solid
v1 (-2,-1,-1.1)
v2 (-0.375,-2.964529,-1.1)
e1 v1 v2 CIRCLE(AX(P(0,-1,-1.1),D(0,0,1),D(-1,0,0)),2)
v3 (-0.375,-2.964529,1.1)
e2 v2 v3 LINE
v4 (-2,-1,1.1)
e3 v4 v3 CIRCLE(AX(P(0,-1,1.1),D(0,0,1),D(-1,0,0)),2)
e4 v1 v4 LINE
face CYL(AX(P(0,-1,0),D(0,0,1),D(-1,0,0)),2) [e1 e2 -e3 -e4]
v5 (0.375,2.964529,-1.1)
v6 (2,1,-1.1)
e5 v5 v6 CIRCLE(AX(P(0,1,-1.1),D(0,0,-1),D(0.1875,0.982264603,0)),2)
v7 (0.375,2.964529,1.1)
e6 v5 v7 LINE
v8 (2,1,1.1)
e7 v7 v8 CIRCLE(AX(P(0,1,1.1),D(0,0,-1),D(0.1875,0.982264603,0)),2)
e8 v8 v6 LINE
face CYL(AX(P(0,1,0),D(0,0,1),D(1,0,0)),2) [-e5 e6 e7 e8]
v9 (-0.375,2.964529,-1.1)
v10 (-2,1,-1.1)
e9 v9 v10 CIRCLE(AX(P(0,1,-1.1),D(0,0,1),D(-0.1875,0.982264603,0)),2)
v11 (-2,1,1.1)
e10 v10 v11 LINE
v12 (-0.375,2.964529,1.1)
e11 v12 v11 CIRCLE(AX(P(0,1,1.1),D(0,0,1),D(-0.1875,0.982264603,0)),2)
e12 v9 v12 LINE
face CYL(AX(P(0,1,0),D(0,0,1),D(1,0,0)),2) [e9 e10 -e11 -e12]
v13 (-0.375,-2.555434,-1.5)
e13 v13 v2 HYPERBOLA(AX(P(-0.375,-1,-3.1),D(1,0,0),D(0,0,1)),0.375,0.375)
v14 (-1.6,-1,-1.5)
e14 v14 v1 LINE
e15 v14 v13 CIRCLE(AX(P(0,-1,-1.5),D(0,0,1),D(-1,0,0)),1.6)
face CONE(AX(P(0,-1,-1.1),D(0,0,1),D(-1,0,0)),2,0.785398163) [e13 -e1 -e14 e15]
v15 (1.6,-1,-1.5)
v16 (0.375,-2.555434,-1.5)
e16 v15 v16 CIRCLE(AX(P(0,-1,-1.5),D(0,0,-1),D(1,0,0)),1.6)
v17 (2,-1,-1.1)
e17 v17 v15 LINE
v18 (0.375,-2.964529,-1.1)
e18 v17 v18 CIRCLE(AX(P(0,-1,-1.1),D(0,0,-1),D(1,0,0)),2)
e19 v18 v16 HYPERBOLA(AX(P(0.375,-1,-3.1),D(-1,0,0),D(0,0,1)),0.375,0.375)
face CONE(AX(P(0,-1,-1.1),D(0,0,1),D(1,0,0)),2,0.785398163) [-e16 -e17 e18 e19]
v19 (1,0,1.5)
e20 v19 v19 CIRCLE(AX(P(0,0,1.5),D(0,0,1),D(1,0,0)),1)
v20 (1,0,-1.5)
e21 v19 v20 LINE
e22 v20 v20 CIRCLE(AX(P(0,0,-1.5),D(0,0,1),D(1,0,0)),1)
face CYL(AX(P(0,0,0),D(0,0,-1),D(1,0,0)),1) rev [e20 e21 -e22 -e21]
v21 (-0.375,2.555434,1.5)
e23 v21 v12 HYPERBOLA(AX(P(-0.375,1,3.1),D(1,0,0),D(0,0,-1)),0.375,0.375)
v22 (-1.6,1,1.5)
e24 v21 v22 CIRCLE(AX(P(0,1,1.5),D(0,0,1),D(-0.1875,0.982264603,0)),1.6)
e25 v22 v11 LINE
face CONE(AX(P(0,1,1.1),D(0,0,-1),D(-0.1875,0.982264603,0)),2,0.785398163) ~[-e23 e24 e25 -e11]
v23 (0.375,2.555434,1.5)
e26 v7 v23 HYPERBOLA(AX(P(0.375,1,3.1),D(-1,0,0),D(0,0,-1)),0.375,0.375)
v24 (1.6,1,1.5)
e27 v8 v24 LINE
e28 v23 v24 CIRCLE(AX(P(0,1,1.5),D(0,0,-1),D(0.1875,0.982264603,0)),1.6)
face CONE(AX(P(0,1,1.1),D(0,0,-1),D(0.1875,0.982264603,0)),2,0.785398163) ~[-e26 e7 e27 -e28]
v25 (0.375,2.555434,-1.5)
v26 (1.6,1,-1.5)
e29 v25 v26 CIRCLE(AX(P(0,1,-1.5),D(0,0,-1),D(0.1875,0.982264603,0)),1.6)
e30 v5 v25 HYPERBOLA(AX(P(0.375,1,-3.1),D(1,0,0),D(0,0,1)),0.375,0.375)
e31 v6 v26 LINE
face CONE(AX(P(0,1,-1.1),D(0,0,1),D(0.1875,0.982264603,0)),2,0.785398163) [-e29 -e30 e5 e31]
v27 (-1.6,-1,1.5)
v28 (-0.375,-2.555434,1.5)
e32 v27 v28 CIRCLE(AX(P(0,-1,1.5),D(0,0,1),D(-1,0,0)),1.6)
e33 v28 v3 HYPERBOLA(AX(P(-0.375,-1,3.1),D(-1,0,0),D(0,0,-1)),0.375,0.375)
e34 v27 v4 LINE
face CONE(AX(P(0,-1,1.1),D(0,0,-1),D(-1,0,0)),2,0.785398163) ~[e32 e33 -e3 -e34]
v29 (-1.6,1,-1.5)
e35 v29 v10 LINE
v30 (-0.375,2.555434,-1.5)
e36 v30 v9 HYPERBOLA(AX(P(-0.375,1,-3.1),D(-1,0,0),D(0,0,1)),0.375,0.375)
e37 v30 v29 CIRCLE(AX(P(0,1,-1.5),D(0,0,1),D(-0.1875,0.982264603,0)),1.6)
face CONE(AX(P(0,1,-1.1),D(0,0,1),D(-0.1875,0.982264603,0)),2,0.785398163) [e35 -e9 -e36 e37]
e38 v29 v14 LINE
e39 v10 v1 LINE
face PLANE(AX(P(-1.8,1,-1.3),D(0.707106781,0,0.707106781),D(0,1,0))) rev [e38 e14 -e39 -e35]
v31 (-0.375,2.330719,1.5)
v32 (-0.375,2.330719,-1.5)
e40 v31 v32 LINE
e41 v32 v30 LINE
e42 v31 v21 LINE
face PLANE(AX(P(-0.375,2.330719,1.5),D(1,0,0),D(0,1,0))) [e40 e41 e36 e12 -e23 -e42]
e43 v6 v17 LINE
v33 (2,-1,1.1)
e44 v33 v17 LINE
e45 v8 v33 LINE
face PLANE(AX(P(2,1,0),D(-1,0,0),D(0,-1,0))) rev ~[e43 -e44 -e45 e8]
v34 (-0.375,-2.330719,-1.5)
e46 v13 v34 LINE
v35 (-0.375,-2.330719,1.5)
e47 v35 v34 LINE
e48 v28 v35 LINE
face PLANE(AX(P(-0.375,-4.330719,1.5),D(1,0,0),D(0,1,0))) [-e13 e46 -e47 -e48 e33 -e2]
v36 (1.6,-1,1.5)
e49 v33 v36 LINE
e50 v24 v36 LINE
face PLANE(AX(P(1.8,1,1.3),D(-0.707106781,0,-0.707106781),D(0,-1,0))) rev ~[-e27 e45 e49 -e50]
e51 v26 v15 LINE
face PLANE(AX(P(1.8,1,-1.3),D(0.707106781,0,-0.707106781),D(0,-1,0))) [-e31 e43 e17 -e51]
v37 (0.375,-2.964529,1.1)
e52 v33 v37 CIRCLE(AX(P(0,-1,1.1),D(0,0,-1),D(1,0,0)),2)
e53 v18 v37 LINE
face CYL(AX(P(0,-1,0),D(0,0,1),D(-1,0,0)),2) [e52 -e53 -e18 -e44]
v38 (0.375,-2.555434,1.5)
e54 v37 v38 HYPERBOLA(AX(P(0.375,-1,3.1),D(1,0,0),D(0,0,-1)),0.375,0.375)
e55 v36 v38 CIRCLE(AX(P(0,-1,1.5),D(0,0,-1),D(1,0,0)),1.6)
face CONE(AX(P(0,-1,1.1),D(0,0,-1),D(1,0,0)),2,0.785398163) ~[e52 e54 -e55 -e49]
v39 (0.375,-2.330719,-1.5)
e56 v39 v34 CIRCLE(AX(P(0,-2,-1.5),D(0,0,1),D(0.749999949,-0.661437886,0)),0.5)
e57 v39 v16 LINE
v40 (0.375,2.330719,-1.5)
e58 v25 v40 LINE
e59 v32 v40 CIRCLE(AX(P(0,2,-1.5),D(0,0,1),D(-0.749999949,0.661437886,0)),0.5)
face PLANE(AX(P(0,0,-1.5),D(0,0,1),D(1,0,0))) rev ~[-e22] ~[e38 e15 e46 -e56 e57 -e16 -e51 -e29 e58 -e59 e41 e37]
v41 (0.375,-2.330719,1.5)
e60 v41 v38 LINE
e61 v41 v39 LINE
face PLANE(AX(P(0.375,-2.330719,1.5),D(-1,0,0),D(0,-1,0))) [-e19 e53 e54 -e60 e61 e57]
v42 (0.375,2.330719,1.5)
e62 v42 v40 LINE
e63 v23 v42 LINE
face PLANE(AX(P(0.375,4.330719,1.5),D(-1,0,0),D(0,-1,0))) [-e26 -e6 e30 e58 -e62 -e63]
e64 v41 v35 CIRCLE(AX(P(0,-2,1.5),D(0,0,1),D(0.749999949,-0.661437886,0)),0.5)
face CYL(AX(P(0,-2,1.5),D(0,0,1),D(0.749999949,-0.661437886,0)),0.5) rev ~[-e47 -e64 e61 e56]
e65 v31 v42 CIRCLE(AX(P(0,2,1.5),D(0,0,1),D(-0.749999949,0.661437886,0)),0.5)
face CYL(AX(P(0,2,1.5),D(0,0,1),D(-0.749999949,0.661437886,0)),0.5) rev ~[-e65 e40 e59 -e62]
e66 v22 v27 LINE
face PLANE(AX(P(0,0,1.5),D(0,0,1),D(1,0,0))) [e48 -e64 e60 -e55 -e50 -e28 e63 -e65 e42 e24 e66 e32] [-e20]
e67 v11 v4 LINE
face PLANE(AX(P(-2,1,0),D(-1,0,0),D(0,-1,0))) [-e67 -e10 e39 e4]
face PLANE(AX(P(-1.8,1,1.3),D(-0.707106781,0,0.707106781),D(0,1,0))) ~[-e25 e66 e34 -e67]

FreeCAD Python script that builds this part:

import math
import FreeCAD as App
import Part
import Sketcher
from FreeCAD import Vector
Q = App.Units.Quantity


def edges_at(feature, points):
    """Names of the edges that pass closest to the given points."""
    edges = feature.Shape.Edges
    near = lambda p: min(range(len(edges)), key=lambda i: edges[i].distToShape(Part.Vertex(*p))[0])
    return sorted({f"Edge{near(p) + 1}" for p in points})

doc = App.newDocument("Part")
body = doc.addObject("PartDesign::Body", "Body")

# Sketch on XY plane
sketch1 = doc.addObject("Sketcher::SketchObject", "Sketch")
body.addObject(sketch1)
sketch1.AttachmentSupport = (doc.XY_Plane, [""])
sketch1.MapMode = "FlatFace"
sketch1.addGeometry(Part.ArcOfCircle(Part.Circle(Vector(0, 1, 0), Vector(0, 0, 1), 2), math.radians(0), math.radians(180)), False)
sketch1.addGeometry(Part.LineSegment(Vector(-2, 1, 0), Vector(-2, -1, 0)), False)
sketch1.addGeometry(Part.ArcOfCircle(Part.Circle(Vector(0, -1, 0), Vector(0, 0, 1), 2), math.radians(180), math.radians(360)), False)
sketch1.addGeometry(Part.LineSegment(Vector(2, -1, 0), Vector(2, 1, 0)), False)
sketch1.addGeometry(Part.Circle(Vector(0, 0, 0), Vector(0, 0, 1), 1), False)
sketch1.addConstraint(Sketcher.Constraint("Tangent", 0, 2, 1, 1))
sketch1.addConstraint(Sketcher.Constraint("Tangent", 1, 2, 2, 1))
sketch1.addConstraint(Sketcher.Constraint("Tangent", 2, 2, 3, 1))
sketch1.addConstraint(Sketcher.Constraint("Tangent", 3, 2, 0, 1))
sketch1.addConstraint(Sketcher.Constraint("Vertical", 1))
sketch1.addConstraint(Sketcher.Constraint("Vertical", 3))
sketch1.addConstraint(Sketcher.Constraint("Coincident", 4, 3, -1, 1))
sketch1.addConstraint(Sketcher.Constraint("Symmetric", 0, 3, 2, 3, -1, 1))
sketch1.addConstraint(Sketcher.Constraint("Diameter", 4, Q("2 mm")))
sketch1.addConstraint(Sketcher.Constraint("Radius", 0, Q("2 mm")))
sketch1.addConstraint(Sketcher.Constraint("DistanceY", 1, 2, 1, 1, Q("2 mm")))
pad1 = doc.addObject("PartDesign::Pad", "Pad")
body.addObject(pad1)
pad1.Profile = sketch1
pad1.Length = 3
pad1.Midplane = True

# Sketch on XY plane
sketch2 = doc.addObject("Sketcher::SketchObject", "Sketch001")
body.addObject(sketch2)
sketch2.AttachmentSupport = (doc.XY_Plane, [""])
sketch2.MapMode = "FlatFace"
sketch2.AttachmentOffset = App.Placement(Vector(0, 0, 1.5), App.Rotation())
sketch2.addGeometry(Part.ArcOfCircle(Part.Circle(Vector(0, 2, 0), Vector(0, 0, 1), 0.5), math.radians(138.590373), math.radians(401.409627)), False)
sketch2.addGeometry(Part.LineSegment(Vector(0.375, 2.330719, 0), Vector(0.375, 4.330719, 0)), False)
sketch2.addGeometry(Part.LineSegment(Vector(0.375, 4.330719, 0), Vector(-0.375, 4.330719, 0)), False)
sketch2.addGeometry(Part.LineSegment(Vector(-0.375, 4.330719, 0), Vector(-0.375, 2.330719, 0)), False)
sketch2.addConstraint(Sketcher.Constraint("Coincident", 0, 2, 1, 1))
sketch2.addConstraint(Sketcher.Constraint("Coincident", 1, 2, 2, 1))
sketch2.addConstraint(Sketcher.Constraint("Coincident", 2, 2, 3, 1))
sketch2.addConstraint(Sketcher.Constraint("Coincident", 3, 2, 0, 1))
sketch2.addConstraint(Sketcher.Constraint("Vertical", 1))
sketch2.addConstraint(Sketcher.Constraint("Horizontal", 2))
sketch2.addConstraint(Sketcher.Constraint("Vertical", 3))
sketch2.addConstraint(Sketcher.Constraint("Symmetric", 0, 2, 3, 2, -2))
sketch2.addConstraint(Sketcher.Constraint("Radius", 0, Q("0.5 mm")))
sketch2.addConstraint(Sketcher.Constraint("DistanceY", 1, 1, 1, 2, Q("2 mm")))
sketch2.addConstraint(Sketcher.Constraint("DistanceY", -1, 1, 0, 3, Q("2 mm")))
sketch2.addConstraint(Sketcher.Constraint("DistanceX", 2, 2, 2, 1, Q("0.75 mm")))
pocket1 = doc.addObject("PartDesign::Pocket", "Pocket")
body.addObject(pocket1)
pocket1.Profile = sketch2
pocket1.Type = "ThroughAll"
doc.recompute()

polarpattern = doc.addObject("PartDesign::PolarPattern", "PolarPattern")
body.addObject(polarpattern)
polarpattern.Originals = [pocket1]
polarpattern.Axis = (doc.Z_Axis, [""])
polarpattern.Angle = 360
polarpattern.Occurrences = 2
body.Tip = polarpattern
doc.recompute()

chamfer = doc.addObject("PartDesign::Chamfer", "Chamfer")
body.addObject(chamfer)
chamfer.Base = (polarpattern, edges_at(polarpattern, [
    (-2, 0, -1.5),
    (-2, 0, 1.5),
    (2, 0, -1.5),
    (2, 0, 1.5),
]))
chamfer.Size = 0.4

doc.recompute()
